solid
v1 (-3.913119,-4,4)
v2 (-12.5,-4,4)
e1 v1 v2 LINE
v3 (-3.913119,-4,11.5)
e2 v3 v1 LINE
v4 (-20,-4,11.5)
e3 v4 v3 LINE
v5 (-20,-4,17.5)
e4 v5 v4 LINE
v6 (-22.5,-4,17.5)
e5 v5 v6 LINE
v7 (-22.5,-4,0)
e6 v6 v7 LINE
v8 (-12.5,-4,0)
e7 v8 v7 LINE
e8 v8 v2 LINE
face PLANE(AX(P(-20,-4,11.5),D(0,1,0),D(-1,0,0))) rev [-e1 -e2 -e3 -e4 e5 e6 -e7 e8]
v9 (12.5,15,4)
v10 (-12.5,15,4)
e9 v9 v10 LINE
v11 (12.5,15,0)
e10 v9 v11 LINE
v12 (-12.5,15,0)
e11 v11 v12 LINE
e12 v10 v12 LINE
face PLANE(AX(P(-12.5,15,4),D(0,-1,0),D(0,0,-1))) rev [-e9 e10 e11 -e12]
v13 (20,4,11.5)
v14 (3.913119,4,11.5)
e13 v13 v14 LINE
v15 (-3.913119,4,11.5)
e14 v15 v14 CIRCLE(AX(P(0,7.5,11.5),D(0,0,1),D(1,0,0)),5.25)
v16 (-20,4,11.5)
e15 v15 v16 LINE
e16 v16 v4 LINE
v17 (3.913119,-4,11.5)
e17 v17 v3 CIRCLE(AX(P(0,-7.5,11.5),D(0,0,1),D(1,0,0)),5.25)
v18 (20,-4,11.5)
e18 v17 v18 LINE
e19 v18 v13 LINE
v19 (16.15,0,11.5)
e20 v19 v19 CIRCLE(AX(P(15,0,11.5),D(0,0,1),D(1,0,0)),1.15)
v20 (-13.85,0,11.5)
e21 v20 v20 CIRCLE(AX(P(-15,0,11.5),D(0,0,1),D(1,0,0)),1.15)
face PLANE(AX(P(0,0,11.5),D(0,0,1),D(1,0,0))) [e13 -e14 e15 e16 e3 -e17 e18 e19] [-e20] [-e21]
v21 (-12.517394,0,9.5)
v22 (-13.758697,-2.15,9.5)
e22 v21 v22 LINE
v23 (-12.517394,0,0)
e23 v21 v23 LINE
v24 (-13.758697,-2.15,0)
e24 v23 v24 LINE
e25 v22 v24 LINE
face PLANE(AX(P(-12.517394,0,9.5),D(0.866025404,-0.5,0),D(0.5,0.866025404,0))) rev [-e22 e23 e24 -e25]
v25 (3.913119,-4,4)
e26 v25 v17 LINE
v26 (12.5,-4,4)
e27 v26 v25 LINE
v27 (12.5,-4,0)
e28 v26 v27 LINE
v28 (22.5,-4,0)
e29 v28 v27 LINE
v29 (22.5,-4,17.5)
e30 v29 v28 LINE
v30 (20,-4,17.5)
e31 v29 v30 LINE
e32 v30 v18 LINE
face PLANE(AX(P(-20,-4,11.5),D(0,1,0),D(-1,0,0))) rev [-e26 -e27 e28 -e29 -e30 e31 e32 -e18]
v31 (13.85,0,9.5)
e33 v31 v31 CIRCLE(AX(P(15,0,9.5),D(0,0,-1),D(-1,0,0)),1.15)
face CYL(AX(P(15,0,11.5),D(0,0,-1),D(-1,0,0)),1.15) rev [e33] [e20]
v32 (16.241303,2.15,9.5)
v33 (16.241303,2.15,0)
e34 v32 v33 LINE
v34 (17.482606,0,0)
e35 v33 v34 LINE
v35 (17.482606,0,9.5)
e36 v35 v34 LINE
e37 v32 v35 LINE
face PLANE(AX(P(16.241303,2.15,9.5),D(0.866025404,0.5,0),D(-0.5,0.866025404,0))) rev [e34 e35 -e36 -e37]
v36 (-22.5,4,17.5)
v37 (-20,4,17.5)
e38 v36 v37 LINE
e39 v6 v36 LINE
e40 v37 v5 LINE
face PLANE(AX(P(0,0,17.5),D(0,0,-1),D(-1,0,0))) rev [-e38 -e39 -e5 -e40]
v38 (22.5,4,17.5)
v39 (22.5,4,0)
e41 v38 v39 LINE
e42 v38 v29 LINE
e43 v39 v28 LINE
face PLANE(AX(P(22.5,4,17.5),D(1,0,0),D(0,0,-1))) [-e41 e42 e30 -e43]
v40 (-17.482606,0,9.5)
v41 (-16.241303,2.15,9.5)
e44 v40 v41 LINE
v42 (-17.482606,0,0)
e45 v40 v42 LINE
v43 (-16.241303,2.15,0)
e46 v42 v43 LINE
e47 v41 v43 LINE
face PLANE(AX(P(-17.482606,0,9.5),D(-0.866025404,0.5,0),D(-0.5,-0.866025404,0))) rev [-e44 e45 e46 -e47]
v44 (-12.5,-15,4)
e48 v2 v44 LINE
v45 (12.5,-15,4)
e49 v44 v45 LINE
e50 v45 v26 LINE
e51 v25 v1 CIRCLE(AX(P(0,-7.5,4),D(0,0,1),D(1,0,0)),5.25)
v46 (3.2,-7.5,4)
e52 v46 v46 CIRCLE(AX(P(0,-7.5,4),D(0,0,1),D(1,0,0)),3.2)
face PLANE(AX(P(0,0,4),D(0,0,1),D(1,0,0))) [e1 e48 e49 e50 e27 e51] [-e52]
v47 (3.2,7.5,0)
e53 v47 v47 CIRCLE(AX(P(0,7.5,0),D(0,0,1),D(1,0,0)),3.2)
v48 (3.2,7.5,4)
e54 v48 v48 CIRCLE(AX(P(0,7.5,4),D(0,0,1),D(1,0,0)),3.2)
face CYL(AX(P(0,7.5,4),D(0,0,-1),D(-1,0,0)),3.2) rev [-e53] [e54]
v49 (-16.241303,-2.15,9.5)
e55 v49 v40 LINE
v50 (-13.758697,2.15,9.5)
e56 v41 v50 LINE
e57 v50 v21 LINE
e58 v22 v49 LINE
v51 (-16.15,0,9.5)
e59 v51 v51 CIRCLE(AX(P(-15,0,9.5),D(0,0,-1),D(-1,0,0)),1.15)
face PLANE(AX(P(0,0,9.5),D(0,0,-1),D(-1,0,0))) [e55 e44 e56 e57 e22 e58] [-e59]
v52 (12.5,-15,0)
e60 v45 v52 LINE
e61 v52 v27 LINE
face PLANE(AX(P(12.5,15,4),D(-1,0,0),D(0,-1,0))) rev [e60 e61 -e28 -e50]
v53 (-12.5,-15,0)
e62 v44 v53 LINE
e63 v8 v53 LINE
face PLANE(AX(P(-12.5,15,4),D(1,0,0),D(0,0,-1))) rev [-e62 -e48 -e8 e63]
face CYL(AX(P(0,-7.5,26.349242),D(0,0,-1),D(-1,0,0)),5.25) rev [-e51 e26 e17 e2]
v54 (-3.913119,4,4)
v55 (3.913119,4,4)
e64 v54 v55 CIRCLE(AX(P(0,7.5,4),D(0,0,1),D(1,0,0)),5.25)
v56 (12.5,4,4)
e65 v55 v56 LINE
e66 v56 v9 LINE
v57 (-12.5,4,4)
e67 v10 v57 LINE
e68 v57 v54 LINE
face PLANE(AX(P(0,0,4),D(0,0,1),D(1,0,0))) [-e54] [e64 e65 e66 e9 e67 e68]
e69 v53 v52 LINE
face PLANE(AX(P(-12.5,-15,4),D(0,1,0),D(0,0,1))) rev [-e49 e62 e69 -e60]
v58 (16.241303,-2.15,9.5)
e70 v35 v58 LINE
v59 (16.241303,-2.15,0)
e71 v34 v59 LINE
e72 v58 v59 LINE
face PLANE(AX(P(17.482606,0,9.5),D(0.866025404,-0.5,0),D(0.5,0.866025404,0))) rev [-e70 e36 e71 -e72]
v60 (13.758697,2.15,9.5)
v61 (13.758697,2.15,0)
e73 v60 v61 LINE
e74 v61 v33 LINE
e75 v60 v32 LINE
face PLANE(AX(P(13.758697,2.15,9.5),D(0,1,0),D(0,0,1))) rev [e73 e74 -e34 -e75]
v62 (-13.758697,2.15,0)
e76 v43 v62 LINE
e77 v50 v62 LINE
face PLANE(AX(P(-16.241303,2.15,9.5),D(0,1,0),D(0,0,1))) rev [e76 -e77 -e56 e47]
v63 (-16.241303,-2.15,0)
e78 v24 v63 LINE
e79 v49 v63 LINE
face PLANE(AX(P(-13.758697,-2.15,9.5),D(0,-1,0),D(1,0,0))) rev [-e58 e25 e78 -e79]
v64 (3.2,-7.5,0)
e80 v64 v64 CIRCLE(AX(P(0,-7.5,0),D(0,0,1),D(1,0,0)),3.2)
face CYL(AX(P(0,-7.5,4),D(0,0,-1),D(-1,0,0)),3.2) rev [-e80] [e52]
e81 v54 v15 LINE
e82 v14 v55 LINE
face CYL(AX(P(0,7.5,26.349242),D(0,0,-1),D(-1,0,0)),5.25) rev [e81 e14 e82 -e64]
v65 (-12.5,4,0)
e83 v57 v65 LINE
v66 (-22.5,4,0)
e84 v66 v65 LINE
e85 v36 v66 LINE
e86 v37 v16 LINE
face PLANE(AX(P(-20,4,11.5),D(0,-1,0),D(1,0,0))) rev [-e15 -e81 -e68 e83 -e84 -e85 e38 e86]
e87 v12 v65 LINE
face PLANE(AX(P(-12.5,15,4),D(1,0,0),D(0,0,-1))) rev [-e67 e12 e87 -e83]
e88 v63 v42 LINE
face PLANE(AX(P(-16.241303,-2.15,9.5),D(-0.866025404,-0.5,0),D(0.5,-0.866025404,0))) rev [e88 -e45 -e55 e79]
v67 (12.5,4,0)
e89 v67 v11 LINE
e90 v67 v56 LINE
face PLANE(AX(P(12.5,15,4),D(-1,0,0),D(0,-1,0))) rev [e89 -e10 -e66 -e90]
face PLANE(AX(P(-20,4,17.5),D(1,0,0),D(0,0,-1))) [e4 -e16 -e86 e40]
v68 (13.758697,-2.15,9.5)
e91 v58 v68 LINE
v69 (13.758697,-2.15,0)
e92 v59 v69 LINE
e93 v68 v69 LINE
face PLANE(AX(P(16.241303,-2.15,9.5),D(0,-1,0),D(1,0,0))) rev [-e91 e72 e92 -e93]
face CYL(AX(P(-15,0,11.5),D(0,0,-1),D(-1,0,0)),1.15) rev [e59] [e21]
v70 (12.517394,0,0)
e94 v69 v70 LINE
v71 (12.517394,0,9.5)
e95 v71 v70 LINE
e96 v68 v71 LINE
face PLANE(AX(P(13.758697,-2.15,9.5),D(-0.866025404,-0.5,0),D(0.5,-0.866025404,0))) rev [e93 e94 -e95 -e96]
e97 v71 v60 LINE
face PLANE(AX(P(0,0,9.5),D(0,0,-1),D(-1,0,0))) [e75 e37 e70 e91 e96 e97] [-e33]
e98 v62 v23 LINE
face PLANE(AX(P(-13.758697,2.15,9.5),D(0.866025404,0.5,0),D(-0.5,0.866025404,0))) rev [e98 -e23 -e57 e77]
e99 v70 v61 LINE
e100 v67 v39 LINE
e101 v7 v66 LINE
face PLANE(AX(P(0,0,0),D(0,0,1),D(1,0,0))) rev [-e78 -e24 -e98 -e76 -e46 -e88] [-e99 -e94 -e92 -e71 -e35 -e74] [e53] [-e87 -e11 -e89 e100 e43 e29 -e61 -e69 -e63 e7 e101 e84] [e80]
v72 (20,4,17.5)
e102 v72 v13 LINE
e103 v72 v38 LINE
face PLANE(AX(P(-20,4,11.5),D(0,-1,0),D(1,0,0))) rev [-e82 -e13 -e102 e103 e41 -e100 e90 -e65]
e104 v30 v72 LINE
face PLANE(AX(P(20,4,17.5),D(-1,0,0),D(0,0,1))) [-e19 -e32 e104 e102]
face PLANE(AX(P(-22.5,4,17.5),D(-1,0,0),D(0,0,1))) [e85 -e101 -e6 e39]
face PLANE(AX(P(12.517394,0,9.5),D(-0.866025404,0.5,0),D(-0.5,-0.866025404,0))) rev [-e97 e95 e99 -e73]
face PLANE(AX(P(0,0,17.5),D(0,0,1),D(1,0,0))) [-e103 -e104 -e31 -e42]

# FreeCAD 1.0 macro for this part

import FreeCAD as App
import Part
import Sketcher

V = App.Vector
Q = App.Units.Quantity


def add_polygon(sketch, points):
    """Adds a closed chain of lines whose ends are joined by coincident constraints."""
    first, n = sketch.GeometryCount, len(points)
    for a, b in zip(points, points[1:] + points[:1]):
        sketch.addGeometry(Part.LineSegment(App.Vector(*a, 0), App.Vector(*b, 0)), False)
    for i in range(n):
        sketch.addConstraint(Sketcher.Constraint("Coincident", first + i, 2, first + (i + 1) % n, 1))

doc = App.newDocument("Part")
body = doc.addObject("PartDesign::Body", "Body")

sketch1 = body.newObject("Sketcher::SketchObject", "Sketch")
sketch1.AttachmentSupport = (doc.getObject("XY_Plane"), [""])
sketch1.MapMode = "FlatFace"
add_polygon(sketch1, [(-12.5, 15), (-12.5, -15), (12.5, -15), (12.5, 15)])
sketch1.addGeometry(Part.Circle(V(0, -7.5, 0), V(0, 0, 1), 3.2), False)
sketch1.addGeometry(Part.Circle(V(0, 7.5, 0), V(0, 0, 1), 3.2), False)
sketch1.addConstraint(Sketcher.Constraint("Vertical", 0))
sketch1.addConstraint(Sketcher.Constraint("Horizontal", 1))
sketch1.addConstraint(Sketcher.Constraint("Vertical", 2))
sketch1.addConstraint(Sketcher.Constraint("Horizontal", 3))
sketch1.addConstraint(Sketcher.Constraint("Equal", 4, 5))
sketch1.addConstraint(Sketcher.Constraint("Symmetric", 4, 3, 5, 3, -1, 1))
sketch1.addConstraint(Sketcher.Constraint("Symmetric", 0, 2, 2, 2, -1, 1))
sketch1.addConstraint(Sketcher.Constraint("PointOnObject", 4, 3, -2))
sketch1.addConstraint(Sketcher.Constraint("Diameter", 4, 6.4))
sketch1.addConstraint(Sketcher.Constraint("DistanceX", 1, 1, 1, 2, 25.0))
sketch1.addConstraint(Sketcher.Constraint("DistanceY", 0, 2, 0, 1, 30.0))
sketch1.addConstraint(Sketcher.Constraint("DistanceY", 4, 3, 5, 3, 15.0))
pad1 = body.newObject("PartDesign::Pad", "Pad")
pad1.Profile = sketch1
pad1.Length = 4

sketch2 = body.newObject("Sketcher::SketchObject", "Sketch001")
sketch2.AttachmentSupport = (doc.getObject("XY_Plane"), [""])
sketch2.MapMode = "FlatFace"
sketch2.AttachmentOffset = App.Placement(V(0, 0, 4), App.Rotation())
add_polygon(sketch2, [(-20, 4), (-20, -4), (20, -4), (20, 4)])
sketch2.addGeometry(Part.Circle(V(-15, 0, 0), V(0, 0, 1), 1.1), False)
sketch2.addGeometry(Part.Circle(V(15, 0, 0), V(0, 0, 1), 1.1), False)
sketch2.addConstraint(Sketcher.Constraint("Vertical", 0))
sketch2.addConstraint(Sketcher.Constraint("Horizontal", 1))
sketch2.addConstraint(Sketcher.Constraint("Vertical", 2))
sketch2.addConstraint(Sketcher.Constraint("Horizontal", 3))
sketch2.addConstraint(Sketcher.Constraint("Equal", 4, 5))
sketch2.addConstraint(Sketcher.Constraint("Symmetric", 4, 3, 5, 3, -1, 1))
sketch2.addConstraint(Sketcher.Constraint("Symmetric", 0, 2, 2, 2, -1, 1))
sketch2.addConstraint(Sketcher.Constraint("PointOnObject", 4, 3, -1))
sketch2.addConstraint(Sketcher.Constraint("Diameter", 4, 2.3))
sketch2.addConstraint(Sketcher.Constraint("DistanceX", 1, 1, 1, 2, 40.0))
sketch2.addConstraint(Sketcher.Constraint("DistanceY", 0, 2, 0, 1, 8.0))
sketch2.addConstraint(Sketcher.Constraint("DistanceX", 4, 3, -1, 1, 15.0))
pad2 = body.newObject("PartDesign::Pad", "Pad001")
pad2.Profile = sketch2
pad2.Type = "TwoLengths"
pad2.Length = 7.5
pad2.Length2 = 4

sketch3 = body.newObject("Sketcher::SketchObject", "Sketch002")
sketch3.AttachmentSupport = (doc.getObject("XY_Plane"), [""])
sketch3.MapMode = "FlatFace"
add_polygon(sketch3, [(-17.5, 0), (-16.2, 2.1), (-13.8, 2.1), (-12.5, 0), (-13.8, -2.1), (-16.2, -2.1)])
add_polygon(sketch3, [(12.5, 0), (13.8, 2.1), (16.2, 2.1), (17.5, 0), (16.2, -2.1), (13.8, -2.1)])
sketch3.addConstraint(Sketcher.Constraint("Horizontal", 1))
sketch3.addConstraint(Sketcher.Constraint("Horizontal", 4))
sketch3.addConstraint(Sketcher.Constraint("Horizontal", 7))
sketch3.addConstraint(Sketcher.Constraint("Horizontal", 10))
sketch3.addConstraint(Sketcher.Constraint("Symmetric", 3, 2, 6, 2, -1, 1))
sketch3.addConstraint(Sketcher.Constraint("Symmetric", 5, 2, 8, 2, -1, 1))
sketch3.addConstraint(Sketcher.Constraint("Symmetric", 0, 2, 9, 2, -1, 1))
sketch3.addConstraint(Sketcher.Constraint("Symmetric", 2, 2, 11, 2, -1, 1))
sketch3.addConstraint(Sketcher.Constraint("Symmetric", 1, 2, 6, 2, -2))
sketch3.addConstraint(Sketcher.Constraint("PointOnObject", 2, 2, -1))
sketch3.addConstraint(Sketcher.Constraint("PointOnObject", 5, 2, -1))
sketch3.addConstraint(Sketcher.Constraint("Parallel", 0, 3))
sketch3.addConstraint(Sketcher.Constraint("Parallel", 2, 5))
sketch3.addConstraint(Sketcher.Constraint("Parallel", 5, 8))
sketch3.addConstraint(Sketcher.Constraint("Parallel", 8, 11))
sketch3.addConstraint(Sketcher.Constraint("Angle", 0, Q("60 deg")))
sketch3.addConstraint(Sketcher.Constraint("DistanceX", 0, 2, 6, 2, 30.0))
sketch3.addConstraint(Sketcher.Constraint("DistanceY", 3, 2, 1, 2, 4.3))
sketch3.addConstraint(Sketcher.Constraint("DistanceX", 1, 1, 1, 2, 2.482606))
pocket1 = body.newObject("PartDesign::Pocket", "Pocket")
pocket1.Profile = sketch3
pocket1.Length = 9.5
pocket1.Reversed = True

sketch4 = body.newObject("Sketcher::SketchObject", "Sketch003")
sketch4.AttachmentSupport = (doc.getObject("XY_Plane"), [""])
sketch4.MapMode = "FlatFace"
sketch4.AttachmentOffset = App.Placement(V(0, 0, 4), App.Rotation())
sketch4.addGeometry(Part.Circle(V(0, 8, 0), V(0, 0, 1), 5), False)
sketch4.addGeometry(Part.Circle(V(0, -8, 0), V(0, 0, 1), 5), False)
sketch4.addConstraint(Sketcher.Constraint("Equal", 0, 1))
sketch4.addConstraint(Sketcher.Constraint("Symmetric", 0, 3, 1, 3, -1, 1))
sketch4.addConstraint(Sketcher.Constraint("PointOnObject", 0, 3, -2))
sketch4.addConstraint(Sketcher.Constraint("Diameter", 0, 10.5))
sketch4.addConstraint(Sketcher.Constraint("DistanceY", 1, 3, 0, 3, 15.0))
pocket2 = body.newObject("PartDesign::Pocket", "Pocket001")
pocket2.Profile = sketch4
pocket2.Length = 7.5
pocket2.Reversed = True

sketch5 = body.newObject("Sketcher::SketchObject", "Sketch004")
sketch5.AttachmentSupport = (doc.getObject("XY_Plane"), [""])
sketch5.MapMode = "FlatFace"
add_polygon(sketch5, [(-20, 4), (-20, -4), (-22.5, -4), (-22.5, 4)])
add_polygon(sketch5, [(22.5, 4), (22.5, -4), (20, -4), (20, 4)])
sketch5.addConstraint(Sketcher.Constraint("Vertical", 0))
sketch5.addConstraint(Sketcher.Constraint("Horizontal", 1))
sketch5.addConstraint(Sketcher.Constraint("Vertical", 2))
sketch5.addConstraint(Sketcher.Constraint("Horizontal", 3))
sketch5.addConstraint(Sketcher.Constraint("Vertical", 4))
sketch5.addConstraint(Sketcher.Constraint("Horizontal", 5))
sketch5.addConstraint(Sketcher.Constraint("Vertical", 6))
sketch5.addConstraint(Sketcher.Constraint("Horizontal", 7))
sketch5.addConstraint(Sketcher.Constraint("Symmetric", 2, 2, 4, 2, -1, 1))
sketch5.addConstraint(Sketcher.Constraint("Symmetric", 0, 2, 6, 2, -1, 1))
sketch5.addConstraint(Sketcher.Constraint("Horizontal", 1, 2, 4, 2))
sketch5.addConstraint(Sketcher.Constraint("DistanceY", 0, 2, 0, 1, 8.0))
sketch5.addConstraint(Sketcher.Constraint("DistanceX", 1, 2, 1, 1, 2.5))
sketch5.addConstraint(Sketcher.Constraint("DistanceX", 0, 2, -1, 1, 20.0))
pad3 = body.newObject("PartDesign::Pad", "Pad002")
pad3.Profile = sketch5
pad3.Length = 17.5

doc.recompute()
